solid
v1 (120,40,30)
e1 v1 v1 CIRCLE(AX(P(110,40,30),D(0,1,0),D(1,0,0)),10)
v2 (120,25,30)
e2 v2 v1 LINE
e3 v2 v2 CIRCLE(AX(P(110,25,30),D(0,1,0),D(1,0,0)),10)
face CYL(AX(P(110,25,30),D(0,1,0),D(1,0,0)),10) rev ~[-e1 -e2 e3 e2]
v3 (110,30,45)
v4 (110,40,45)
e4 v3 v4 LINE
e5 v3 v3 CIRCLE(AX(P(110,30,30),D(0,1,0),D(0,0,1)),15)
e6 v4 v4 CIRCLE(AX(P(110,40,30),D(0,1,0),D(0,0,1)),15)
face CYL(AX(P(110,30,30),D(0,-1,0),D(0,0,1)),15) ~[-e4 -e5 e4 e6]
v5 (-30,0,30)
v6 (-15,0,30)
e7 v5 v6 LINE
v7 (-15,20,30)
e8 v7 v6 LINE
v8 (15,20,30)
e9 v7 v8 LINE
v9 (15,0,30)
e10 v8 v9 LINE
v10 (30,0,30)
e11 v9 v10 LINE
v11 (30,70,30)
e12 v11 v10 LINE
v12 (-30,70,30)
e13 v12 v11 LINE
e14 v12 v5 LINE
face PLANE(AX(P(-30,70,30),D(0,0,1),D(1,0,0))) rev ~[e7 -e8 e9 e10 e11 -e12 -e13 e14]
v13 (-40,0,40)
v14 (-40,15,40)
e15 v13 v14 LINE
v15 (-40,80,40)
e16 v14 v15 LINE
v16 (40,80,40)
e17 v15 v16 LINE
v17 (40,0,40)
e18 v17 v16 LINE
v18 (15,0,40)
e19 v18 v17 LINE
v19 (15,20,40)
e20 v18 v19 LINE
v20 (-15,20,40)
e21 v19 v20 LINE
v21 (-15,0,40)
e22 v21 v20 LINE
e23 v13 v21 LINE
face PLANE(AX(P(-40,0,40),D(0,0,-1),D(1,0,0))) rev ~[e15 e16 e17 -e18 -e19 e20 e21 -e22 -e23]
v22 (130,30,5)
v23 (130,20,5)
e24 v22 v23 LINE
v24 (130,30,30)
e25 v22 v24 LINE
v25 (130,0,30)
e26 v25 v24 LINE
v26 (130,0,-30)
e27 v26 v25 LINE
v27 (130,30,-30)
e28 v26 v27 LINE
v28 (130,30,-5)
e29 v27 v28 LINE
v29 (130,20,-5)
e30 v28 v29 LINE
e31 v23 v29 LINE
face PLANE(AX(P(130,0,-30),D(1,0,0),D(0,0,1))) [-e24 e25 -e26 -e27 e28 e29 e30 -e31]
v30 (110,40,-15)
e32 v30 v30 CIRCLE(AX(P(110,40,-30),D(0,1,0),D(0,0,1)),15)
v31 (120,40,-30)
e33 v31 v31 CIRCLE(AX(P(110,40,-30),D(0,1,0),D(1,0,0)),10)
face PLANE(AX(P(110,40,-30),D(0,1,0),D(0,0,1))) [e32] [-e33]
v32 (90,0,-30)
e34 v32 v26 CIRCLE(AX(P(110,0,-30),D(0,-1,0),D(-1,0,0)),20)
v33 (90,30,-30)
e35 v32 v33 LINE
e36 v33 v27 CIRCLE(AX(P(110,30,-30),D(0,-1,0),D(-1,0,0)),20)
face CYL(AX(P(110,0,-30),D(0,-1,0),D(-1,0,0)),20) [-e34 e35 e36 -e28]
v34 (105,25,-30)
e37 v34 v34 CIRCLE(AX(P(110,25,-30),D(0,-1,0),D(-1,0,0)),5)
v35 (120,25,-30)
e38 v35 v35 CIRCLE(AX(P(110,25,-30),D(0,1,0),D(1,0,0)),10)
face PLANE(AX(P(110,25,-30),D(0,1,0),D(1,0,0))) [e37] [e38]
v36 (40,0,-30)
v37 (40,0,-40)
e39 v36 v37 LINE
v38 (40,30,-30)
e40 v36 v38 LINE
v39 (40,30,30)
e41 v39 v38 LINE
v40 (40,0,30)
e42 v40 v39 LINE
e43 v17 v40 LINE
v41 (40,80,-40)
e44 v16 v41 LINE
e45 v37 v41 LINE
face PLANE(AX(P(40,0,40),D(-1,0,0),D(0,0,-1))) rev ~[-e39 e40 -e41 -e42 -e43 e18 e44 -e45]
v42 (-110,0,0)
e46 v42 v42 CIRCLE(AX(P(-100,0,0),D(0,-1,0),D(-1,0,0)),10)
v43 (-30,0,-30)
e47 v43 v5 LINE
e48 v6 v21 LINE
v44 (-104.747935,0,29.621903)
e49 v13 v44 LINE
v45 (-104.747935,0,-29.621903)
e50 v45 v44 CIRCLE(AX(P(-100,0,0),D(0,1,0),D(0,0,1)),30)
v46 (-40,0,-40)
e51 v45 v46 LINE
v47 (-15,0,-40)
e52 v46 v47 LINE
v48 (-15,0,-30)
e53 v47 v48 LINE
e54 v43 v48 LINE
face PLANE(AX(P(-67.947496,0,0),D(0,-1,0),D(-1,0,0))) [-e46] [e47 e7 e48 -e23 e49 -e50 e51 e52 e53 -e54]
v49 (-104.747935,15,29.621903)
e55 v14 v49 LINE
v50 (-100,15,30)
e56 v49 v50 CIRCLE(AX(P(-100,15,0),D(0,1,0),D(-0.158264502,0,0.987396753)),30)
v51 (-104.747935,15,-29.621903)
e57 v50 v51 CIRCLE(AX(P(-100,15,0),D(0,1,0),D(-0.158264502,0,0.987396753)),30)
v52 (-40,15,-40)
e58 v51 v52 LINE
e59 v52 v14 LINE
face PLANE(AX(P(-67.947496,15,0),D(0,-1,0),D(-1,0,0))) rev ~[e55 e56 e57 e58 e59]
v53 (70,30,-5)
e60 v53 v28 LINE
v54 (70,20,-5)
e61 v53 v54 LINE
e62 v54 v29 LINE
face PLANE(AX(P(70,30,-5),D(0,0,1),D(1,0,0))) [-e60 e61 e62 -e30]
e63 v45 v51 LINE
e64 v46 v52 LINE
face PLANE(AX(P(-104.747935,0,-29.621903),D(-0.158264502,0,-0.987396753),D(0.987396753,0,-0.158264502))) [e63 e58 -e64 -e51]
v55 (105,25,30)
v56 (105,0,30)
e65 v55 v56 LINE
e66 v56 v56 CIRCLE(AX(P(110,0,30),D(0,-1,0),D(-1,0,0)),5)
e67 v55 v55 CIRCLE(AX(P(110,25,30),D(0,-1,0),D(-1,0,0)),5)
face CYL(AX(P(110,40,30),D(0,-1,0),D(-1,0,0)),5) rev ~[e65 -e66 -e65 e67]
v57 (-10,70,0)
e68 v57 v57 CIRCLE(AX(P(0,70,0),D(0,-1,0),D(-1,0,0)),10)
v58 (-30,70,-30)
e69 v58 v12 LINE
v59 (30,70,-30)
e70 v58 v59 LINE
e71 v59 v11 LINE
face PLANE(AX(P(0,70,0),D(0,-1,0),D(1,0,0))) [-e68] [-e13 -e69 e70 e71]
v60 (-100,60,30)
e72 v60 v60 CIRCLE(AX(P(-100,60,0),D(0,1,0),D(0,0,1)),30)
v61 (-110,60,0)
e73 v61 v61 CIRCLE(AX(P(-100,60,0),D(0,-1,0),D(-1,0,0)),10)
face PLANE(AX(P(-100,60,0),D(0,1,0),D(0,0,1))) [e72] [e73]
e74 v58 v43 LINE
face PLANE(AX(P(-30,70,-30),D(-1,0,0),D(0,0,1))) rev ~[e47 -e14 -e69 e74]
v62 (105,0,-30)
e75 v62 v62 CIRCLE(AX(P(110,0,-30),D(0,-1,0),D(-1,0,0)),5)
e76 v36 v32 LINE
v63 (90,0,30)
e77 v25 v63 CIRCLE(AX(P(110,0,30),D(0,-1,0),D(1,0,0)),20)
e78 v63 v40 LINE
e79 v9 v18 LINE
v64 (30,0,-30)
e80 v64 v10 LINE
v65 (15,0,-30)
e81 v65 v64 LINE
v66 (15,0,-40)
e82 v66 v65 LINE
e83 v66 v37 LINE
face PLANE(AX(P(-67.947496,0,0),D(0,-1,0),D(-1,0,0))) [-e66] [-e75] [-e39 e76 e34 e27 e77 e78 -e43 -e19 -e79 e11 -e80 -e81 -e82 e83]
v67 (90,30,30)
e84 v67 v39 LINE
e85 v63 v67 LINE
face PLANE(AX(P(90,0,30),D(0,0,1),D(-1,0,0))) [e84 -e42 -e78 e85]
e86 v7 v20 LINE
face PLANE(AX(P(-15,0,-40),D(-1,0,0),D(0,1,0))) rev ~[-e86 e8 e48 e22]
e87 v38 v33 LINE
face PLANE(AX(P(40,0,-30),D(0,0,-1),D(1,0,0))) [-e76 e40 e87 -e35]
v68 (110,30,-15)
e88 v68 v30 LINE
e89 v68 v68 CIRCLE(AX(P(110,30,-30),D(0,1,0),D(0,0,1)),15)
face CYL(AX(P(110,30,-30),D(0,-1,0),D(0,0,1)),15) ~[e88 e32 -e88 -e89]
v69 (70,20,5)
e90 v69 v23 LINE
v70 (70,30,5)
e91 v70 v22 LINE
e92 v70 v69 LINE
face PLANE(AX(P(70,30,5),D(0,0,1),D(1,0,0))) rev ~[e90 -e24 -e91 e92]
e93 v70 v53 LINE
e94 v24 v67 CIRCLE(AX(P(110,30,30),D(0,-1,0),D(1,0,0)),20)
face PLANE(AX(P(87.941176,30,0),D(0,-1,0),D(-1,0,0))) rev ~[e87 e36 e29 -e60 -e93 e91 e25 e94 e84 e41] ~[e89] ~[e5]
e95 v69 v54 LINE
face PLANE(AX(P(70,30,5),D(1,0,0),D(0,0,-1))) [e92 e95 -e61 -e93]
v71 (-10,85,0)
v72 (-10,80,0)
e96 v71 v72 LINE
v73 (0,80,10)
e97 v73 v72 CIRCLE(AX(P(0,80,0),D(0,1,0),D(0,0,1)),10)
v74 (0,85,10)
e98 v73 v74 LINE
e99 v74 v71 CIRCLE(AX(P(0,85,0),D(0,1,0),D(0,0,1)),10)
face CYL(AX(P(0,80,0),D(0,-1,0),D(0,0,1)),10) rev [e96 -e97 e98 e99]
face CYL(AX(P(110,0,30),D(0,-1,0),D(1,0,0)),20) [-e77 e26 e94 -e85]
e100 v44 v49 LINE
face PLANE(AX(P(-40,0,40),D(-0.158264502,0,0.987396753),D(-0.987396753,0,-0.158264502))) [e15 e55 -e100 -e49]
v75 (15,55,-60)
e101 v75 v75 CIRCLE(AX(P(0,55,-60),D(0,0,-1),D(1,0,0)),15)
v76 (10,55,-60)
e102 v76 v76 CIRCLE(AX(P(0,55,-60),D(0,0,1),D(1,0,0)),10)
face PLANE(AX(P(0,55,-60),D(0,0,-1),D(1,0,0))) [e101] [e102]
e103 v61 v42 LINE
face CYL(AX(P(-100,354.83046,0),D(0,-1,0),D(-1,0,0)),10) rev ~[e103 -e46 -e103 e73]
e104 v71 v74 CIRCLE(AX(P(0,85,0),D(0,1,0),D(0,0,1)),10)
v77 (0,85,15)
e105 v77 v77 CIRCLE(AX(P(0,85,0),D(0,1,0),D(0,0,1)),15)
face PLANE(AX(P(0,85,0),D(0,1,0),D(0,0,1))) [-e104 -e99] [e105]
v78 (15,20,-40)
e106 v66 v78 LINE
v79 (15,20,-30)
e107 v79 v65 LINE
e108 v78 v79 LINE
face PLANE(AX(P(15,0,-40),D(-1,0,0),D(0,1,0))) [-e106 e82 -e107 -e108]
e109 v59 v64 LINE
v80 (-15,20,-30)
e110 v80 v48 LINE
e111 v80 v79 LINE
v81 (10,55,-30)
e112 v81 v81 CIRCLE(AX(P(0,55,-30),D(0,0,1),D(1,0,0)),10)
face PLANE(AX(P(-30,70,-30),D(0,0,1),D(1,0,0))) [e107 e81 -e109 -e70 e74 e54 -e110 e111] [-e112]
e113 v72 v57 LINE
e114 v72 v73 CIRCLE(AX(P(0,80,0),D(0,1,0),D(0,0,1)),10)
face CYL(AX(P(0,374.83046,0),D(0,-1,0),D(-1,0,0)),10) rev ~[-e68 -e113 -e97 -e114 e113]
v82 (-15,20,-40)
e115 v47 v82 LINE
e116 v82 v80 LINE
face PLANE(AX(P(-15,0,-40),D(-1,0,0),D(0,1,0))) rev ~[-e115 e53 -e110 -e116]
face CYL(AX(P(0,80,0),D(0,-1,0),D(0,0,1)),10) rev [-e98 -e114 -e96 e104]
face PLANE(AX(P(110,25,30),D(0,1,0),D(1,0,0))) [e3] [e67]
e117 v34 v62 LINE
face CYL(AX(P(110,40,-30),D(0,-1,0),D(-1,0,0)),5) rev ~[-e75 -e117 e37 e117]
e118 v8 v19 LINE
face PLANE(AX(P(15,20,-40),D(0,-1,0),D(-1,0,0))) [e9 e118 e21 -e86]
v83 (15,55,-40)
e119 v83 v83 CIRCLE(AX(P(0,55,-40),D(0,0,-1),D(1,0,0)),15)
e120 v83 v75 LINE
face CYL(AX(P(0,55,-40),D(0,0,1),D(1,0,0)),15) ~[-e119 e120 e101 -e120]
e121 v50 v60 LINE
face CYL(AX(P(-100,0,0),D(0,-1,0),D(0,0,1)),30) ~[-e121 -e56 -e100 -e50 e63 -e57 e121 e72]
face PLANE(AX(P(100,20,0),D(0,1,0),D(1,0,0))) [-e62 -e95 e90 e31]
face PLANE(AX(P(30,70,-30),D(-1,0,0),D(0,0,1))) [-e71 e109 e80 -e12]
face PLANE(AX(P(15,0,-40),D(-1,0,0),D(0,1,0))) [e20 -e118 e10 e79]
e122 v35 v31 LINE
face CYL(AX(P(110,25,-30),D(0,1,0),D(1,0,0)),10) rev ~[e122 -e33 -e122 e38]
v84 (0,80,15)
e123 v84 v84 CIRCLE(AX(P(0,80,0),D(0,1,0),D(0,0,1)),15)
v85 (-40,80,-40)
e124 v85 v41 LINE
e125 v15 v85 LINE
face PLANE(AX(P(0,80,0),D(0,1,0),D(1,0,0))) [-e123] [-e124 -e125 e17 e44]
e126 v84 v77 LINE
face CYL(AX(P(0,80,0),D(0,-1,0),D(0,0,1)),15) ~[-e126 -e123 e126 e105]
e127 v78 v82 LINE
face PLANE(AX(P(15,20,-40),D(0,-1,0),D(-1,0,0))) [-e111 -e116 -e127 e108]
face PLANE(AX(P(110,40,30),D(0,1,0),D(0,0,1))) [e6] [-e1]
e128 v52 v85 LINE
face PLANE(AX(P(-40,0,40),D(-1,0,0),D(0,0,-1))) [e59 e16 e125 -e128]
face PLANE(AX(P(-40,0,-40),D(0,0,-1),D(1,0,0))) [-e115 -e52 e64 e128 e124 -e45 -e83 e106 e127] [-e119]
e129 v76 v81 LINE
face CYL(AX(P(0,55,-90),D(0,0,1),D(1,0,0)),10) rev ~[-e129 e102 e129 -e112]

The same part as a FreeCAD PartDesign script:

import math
import FreeCAD as App
import Part
import Sketcher

V = App.Vector

doc = App.newDocument("Part")
body = doc.addObject("PartDesign::Body", "Body")

# Sketch on XZ plane
sketch1 = body.newObject("Sketcher::SketchObject", "Sketch")
sketch1.AttachmentSupport = (doc.getObject("XZ_Plane"), [""])
sketch1.MapMode = "FlatFace"
sketch1.addGeometry([
    Part.LineSegment(V(-40, -40, 0), V(-40, 40, 0)),
    Part.LineSegment(V(-40, 40, 0), V(40, 40, 0)),
    Part.LineSegment(V(40, 40, 0), V(40, -40, 0)),
    Part.LineSegment(V(40, -40, 0), V(-40, -40, 0)),
], False)
sketch1.addConstraint([
    Sketcher.Constraint("Coincident", 0, 2, 1, 1),
    Sketcher.Constraint("Coincident", 1, 2, 2, 1),
    Sketcher.Constraint("Coincident", 2, 2, 3, 1),
    Sketcher.Constraint("Coincident", 3, 2, 0, 1),
    Sketcher.Constraint("Vertical", 0),
    Sketcher.Constraint("Horizontal", 1),
    Sketcher.Constraint("Vertical", 2),
    Sketcher.Constraint("Horizontal", 3),
    Sketcher.Constraint("Symmetric", 0, 2, 2, 2, -1, 1),
    Sketcher.Constraint("Equal", 3, 0),
    Sketcher.Constraint("DistanceX", 1, 1, 1, 2, 80.0),
])
pad1 = body.newObject("PartDesign::Pad", "Pad")
pad1.Profile = sketch1
pad1.Length = 80
pad1.Reversed = True

# Sketch on XZ plane
sketch2 = body.newObject("Sketcher::SketchObject", "Sketch001")
sketch2.AttachmentSupport = (doc.getObject("XZ_Plane"), [""])
sketch2.MapMode = "FlatFace"
sketch2.addGeometry([
    Part.LineSegment(V(-30, 30, 0), V(-30, -30, 0)),
    Part.LineSegment(V(-30, -30, 0), V(30, -30, 0)),
    Part.LineSegment(V(30, -30, 0), V(30, 30, 0)),
    Part.LineSegment(V(30, 30, 0), V(-30, 30, 0)),
], False)
sketch2.addConstraint([
    Sketcher.Constraint("Coincident", 0, 2, 1, 1),
    Sketcher.Constraint("Coincident", 1, 2, 2, 1),
    Sketcher.Constraint("Coincident", 2, 2, 3, 1),
    Sketcher.Constraint("Coincident", 3, 2, 0, 1),
    Sketcher.Constraint("Vertical", 0),
    Sketcher.Constraint("Horizontal", 1),
    Sketcher.Constraint("Vertical", 2),
    Sketcher.Constraint("Horizontal", 3),
    Sketcher.Constraint("Symmetric", 0, 2, 2, 2, -1, 1),
    Sketcher.Constraint("Equal", 3, 0),
    Sketcher.Constraint("DistanceX", 1, 1, 1, 2, 60.0),
])
pocket1 = body.newObject("PartDesign::Pocket", "Pocket")
pocket1.Profile = sketch2
pocket1.Type = "TwoLengths"
pocket1.Length = 98.97959
pocket1.Length2 = 70
pocket1.Reversed = True

# Sketch on XZ plane
sketch3 = body.newObject("Sketcher::SketchObject", "Sketch002")
sketch3.AttachmentSupport = (doc.getObject("XZ_Plane"), [""])
sketch3.MapMode = "FlatFace"
sketch3.AttachmentOffset = App.Placement(V(0, 0, -80), App.Rotation())
sketch3.addGeometry([
    Part.Circle(V(0, 0, 0), V(0, 0, 1), 15),
    Part.Circle(V(0, 0, 0), V(0, 0, 1), 10),
], False)
sketch3.addConstraint([
    Sketcher.Constraint("Coincident", 0, 3, -1, 1),
    Sketcher.Constraint("Coincident", 1, 3, -1, 1),
    Sketcher.Constraint("Diameter", 0, 30.0),
    Sketcher.Constraint("Diameter", 1, 20.0),
])
pad2 = body.newObject("PartDesign::Pad", "Pad001")
pad2.Profile = sketch3
pad2.Length = 5
pad2.Reversed = True

# Sketch on XZ plane
sketch4 = body.newObject("Sketcher::SketchObject", "Sketch003")
sketch4.AttachmentSupport = (doc.getObject("XZ_Plane"), [""])
sketch4.MapMode = "FlatFace"
sketch4.addGeometry([
    Part.LineSegment(V(90, -30, 0), V(40, -30, 0)),  # 0
    Part.LineSegment(V(40, -30, 0), V(40, 30, 0)),  # 1
    Part.LineSegment(V(40, 30, 0), V(90, 30, 0)),  # 2
    Part.ArcOfCircle(Part.Circle(V(110, 30, 0), V(0, 0, 1), 20), math.radians(0), math.radians(180)),  # 3
    Part.LineSegment(V(130, 30, 0), V(130, -30, 0)),  # 4
    Part.ArcOfCircle(Part.Circle(V(110, -30, 0), V(0, 0, 1), 20), math.radians(180), math.radians(360)),  # 5
], False)
sketch4.addConstraint([
    Sketcher.Constraint("Coincident", 0, 2, 1, 1),
    Sketcher.Constraint("Coincident", 1, 2, 2, 1),
    Sketcher.Constraint("Coincident", 2, 2, 3, 2),
    Sketcher.Constraint("Tangent", 3, 1, 4, 1),
    Sketcher.Constraint("Tangent", 4, 2, 5, 2),
    Sketcher.Constraint("Coincident", 5, 1, 0, 1),
    Sketcher.Constraint("Horizontal", 0),
    Sketcher.Constraint("Vertical", 1),
    Sketcher.Constraint("Horizontal", 2),
    Sketcher.Constraint("Vertical", 4),
    Sketcher.Constraint("Equal", 3, 5),
    Sketcher.Constraint("Horizontal", 5, 3, 0, 2),
    Sketcher.Constraint("Horizontal", 3, 3, 1, 2),
    Sketcher.Constraint("Radius", 3, 20.0),
    Sketcher.Constraint("DistanceX", 0, 2, 0, 1, 50.0),
    Sketcher.Constraint("DistanceY", 1, 1, 1, 2, 60.0),
    Sketcher.Constraint("DistanceX", -1, 1, 3, 3, 110.0),
    Sketcher.Constraint("DistanceY", -1, 1, 3, 3, 30.0),
])
pad3 = body.newObject("PartDesign::Pad", "Pad002")
pad3.Profile = sketch4
pad3.Length = 30
pad3.Reversed = True

# Sketch on XZ plane
sketch5 = body.newObject("Sketcher::SketchObject", "Sketch004")
sketch5.AttachmentSupport = (doc.getObject("XZ_Plane"), [""])
sketch5.MapMode = "FlatFace"
sketch5.AttachmentOffset = App.Placement(V(0, 0, -30), App.Rotation())
sketch5.addGeometry([
    Part.Circle(V(110, -30, 0), V(0, 0, 1), 15),
    Part.Circle(V(110, 30, 0), V(0, 0, 1), 15),
], False)
sketch5.addConstraint([
    Sketcher.Constraint("Equal", 0, 1),
    Sketcher.Constraint("Symmetric", 0, 3, 1, 3, -1),
    Sketcher.Constraint("Diameter", 0, 30.0),
    Sketcher.Constraint("DistanceX", -1, 1, 0, 3, 110.0),
    Sketcher.Constraint("DistanceY", 0, 3, -1, 1, 30.0),
])
pad4 = body.newObject("PartDesign::Pad", "Pad003")
pad4.Profile = sketch5
pad4.Length = 10
pad4.Reversed = True

# Sketch on XZ plane
sketch6 = body.newObject("Sketcher::SketchObject", "Sketch005")
sketch6.AttachmentSupport = (doc.getObject("XZ_Plane"), [""])
sketch6.MapMode = "FlatFace"
sketch6.AttachmentOffset = App.Placement(V(0, 0, -40), App.Rotation())
sketch6.addGeometry([
    Part.Circle(V(110, -30, 0), V(0, 0, 1), 5),
    Part.Circle(V(110, 30, 0), V(0, 0, 1), 5),
], False)
sketch6.addConstraint([
    Sketcher.Constraint("Equal", 0, 1),
    Sketcher.Constraint("Symmetric", 0, 3, 1, 3, -1),
    Sketcher.Constraint("Diameter", 0, 10.0),
    Sketcher.Constraint("DistanceX", -1, 1, 0, 3, 110.0),
    Sketcher.Constraint("DistanceY", 0, 3, -1, 1, 30.0),
])
doc.recompute()
hole = body.newObject("PartDesign::Hole", "Hole")
hole.Profile = sketch6
hole.ThreadType = "None"
hole.Diameter = 10
hole.DepthType = "ThroughAll"
hole.HoleCutType = "Counterbore"
hole.HoleCutDiameter = 20
hole.HoleCutDepth = 15
hole.Reversed = True

# Sketch on XZ plane
sketch7 = body.newObject("Sketcher::SketchObject", "Sketch006")
sketch7.AttachmentSupport = (doc.getObject("XZ_Plane"), [""])
sketch7.MapMode = "FlatFace"
sketch7.AttachmentOffset = App.Placement(V(0, 0, -30), App.Rotation())
sketch7.addGeometry([
    Part.LineSegment(V(70, -5, 0), V(70, 5, 0)),
    Part.LineSegment(V(70, 5, 0), V(130, 5, 0)),
    Part.LineSegment(V(130, 5, 0), V(130, -5, 0)),
    Part.LineSegment(V(130, -5, 0), V(70, -5, 0)),
], False)
sketch7.addConstraint([
    Sketcher.Constraint("Coincident", 0, 2, 1, 1),
    Sketcher.Constraint("Coincident", 1, 2, 2, 1),
    Sketcher.Constraint("Coincident", 2, 2, 3, 1),
    Sketcher.Constraint("Coincident", 3, 2, 0, 1),
    Sketcher.Constraint("Vertical", 0),
    Sketcher.Constraint("Horizontal", 1),
    Sketcher.Constraint("Vertical", 2),
    Sketcher.Constraint("Horizontal", 3),
    Sketcher.Constraint("DistanceX", 1, 1, 1, 2, 60.0),
    Sketcher.Constraint("DistanceY", 0, 1, 0, 2, 10.0),
    Sketcher.Constraint("DistanceX", -1, 1, 0, 2, 70.0),
    Sketcher.Constraint("DistanceY", -1, 1, 0, 2, 5.0),
])
pocket2 = body.newObject("PartDesign::Pocket", "Pocket001")
pocket2.Profile = sketch7
pocket2.Length = 10
pocket2.Reversed = True
body2 = doc.addObject("PartDesign::Body", "Body001")

# Sketch on XZ plane
sketch8 = body2.newObject("Sketcher::SketchObject", "Sketch007")
sketch8.AttachmentSupport = (doc.getObject("XZ_Plane001"), [""])
sketch8.MapMode = "FlatFace"
sketch8.addGeometry(Part.Circle(V(-100, 0, 0), V(0, 0, 1), 30), False)
sketch8.addConstraint([
    Sketcher.Constraint("PointOnObject", 0, 3, -1),
    Sketcher.Constraint("Diameter", 0, 60.0),
    Sketcher.Constraint("DistanceX", 0, 3, -1, 1, 100.0),
])
pad5 = body2.newObject("PartDesign::Pad", "Pad004")
pad5.Profile = sketch8
pad5.Length = 60
pad5.Reversed = True
body.AllowCompound = True
doc.recompute()

boolean = body.newObject("PartDesign::Boolean", "Boolean")
boolean.Type = "Fuse"
boolean.addObjects([body2])

# Sketch on XZ plane
sketch9 = body.newObject("Sketcher::SketchObject", "Sketch008")
sketch9.AttachmentSupport = (doc.getObject("XZ_Plane"), [""])
sketch9.MapMode = "FlatFace"
sketch9.addGeometry([
    Part.LineSegment(V(-40, 40, 0), V(-40, -40, 0)),
    Part.LineSegment(V(-40, -40, 0), V(-104.747935, -29.621903, 0)),
    Part.ArcOfCircle(Part.Circle(V(-100, 0, 0), V(0, 0, 1), 30), math.radians(-99.106176), math.radians(99.106176)),
    Part.LineSegment(V(-104.747935, 29.621903, 0), V(-40, 40, 0)),
], False)
sketch9.addConstraint([
    Sketcher.Constraint("Coincident", 0, 2, 1, 1),
    Sketcher.Constraint("Tangent", 1, 2, 2, 1),
    Sketcher.Constraint("Tangent", 2, 2, 3, 1),
    Sketcher.Constraint("Coincident", 3, 2, 0, 1),
    Sketcher.Constraint("Vertical", 0),
    Sketcher.Constraint("Symmetric", 1, 2, 2, 2, -1),
    Sketcher.Constraint("Radius", 2, 30.0),
    Sketcher.Constraint("DistanceY", 0, 2, 0, 1, 80.0),
    Sketcher.Constraint("DistanceX", 2, 3, -1, 1, 100.0),
    Sketcher.Constraint("DistanceX", 0, 2, -1, 1, 40.0),
])
pad6 = body.newObject("PartDesign::Pad", "Pad005")
pad6.Profile = sketch9
pad6.Length = 15
pad6.Reversed = True

# Sketch on XY plane
sketch10 = body.newObject("Sketcher::SketchObject", "Sketch009")
sketch10.AttachmentSupport = (doc.getObject("XY_Plane"), [""])
sketch10.MapMode = "FlatFace"
sketch10.AttachmentOffset = App.Placement(V(0, 0, -40), App.Rotation())
sketch10.addGeometry([
    Part.LineSegment(V(15, 20, 0), V(15, 0, 0)),
    Part.LineSegment(V(15, 0, 0), V(-15, 0, 0)),
    Part.LineSegment(V(-15, 0, 0), V(-15, 20, 0)),
    Part.LineSegment(V(-15, 20, 0), V(15, 20, 0)),
], False)
sketch10.addConstraint([
    Sketcher.Constraint("Coincident", 0, 2, 1, 1),
    Sketcher.Constraint("Coincident", 1, 2, 2, 1),
    Sketcher.Constraint("Coincident", 2, 2, 3, 1),
    Sketcher.Constraint("Coincident", 3, 2, 0, 1),
    Sketcher.Constraint("Vertical", 0),
    Sketcher.Constraint("Horizontal", 1),
    Sketcher.Constraint("Vertical", 2),
    Sketcher.Constraint("Horizontal", 3),
    Sketcher.Constraint("Symmetric", 0, 2, 1, 2, -1, 1),
    Sketcher.Constraint("DistanceX", 1, 2, 1, 1, 30.0),
    Sketcher.Constraint("DistanceY", 0, 2, 0, 1, 20.0),
])
pocket3 = body.newObject("PartDesign::Pocket", "Pocket002")
pocket3.Profile = sketch10
pocket3.Type = "ThroughAll"
pocket3.Reversed = True

# Sketch on XY plane
sketch11 = body.newObject("Sketcher::SketchObject", "Sketch010")
sketch11.AttachmentSupport = (doc.getObject("XY_Plane"), [""])
sketch11.MapMode = "FlatFace"
sketch11.AttachmentOffset = App.Placement(V(0, 0, -40), App.Rotation())
sketch11.addGeometry(Part.Circle(V(0, 55, 0), V(0, 0, 1), 15), False)
sketch11.addConstraint([
    Sketcher.Constraint("PointOnObject", 0, 3, -2),
    Sketcher.Constraint("Diameter", 0, 30.0),
    Sketcher.Constraint("DistanceY", -1, 1, 0, 3, 55.0),
])
pad7 = body.newObject("PartDesign::Pad", "Pad006")
pad7.Profile = sketch11
pad7.Length = 20
pad7.Reversed = True

# Sketch on XZ plane
sketch12 = body.newObject("Sketcher::SketchObject", "Sketch011")
sketch12.AttachmentSupport = (doc.getObject("XZ_Plane"), [""])
sketch12.MapMode = "FlatFace"
sketch12.AttachmentOffset = App.Placement(V(0, 0, -80), App.Rotation())
sketch12.addGeometry(Part.Circle(V(0, 0, 0), V(0, 0, 1), 10), False)
sketch12.addConstraint([
    Sketcher.Constraint("Coincident", 0, 3, -1, 1),
    Sketcher.Constraint("Diameter", 0, 20.0),
])
doc.recompute()
hole2 = body.newObject("PartDesign::Hole", "Hole001")
hole2.Profile = sketch12
hole2.ThreadType = "None"
hole2.Diameter = 20
hole2.DepthType = "ThroughAll"
hole2.Reversed = True

# Sketch on XY plane
sketch13 = body.newObject("Sketcher::SketchObject", "Sketch012")
sketch13.AttachmentSupport = (doc.getObject("XY_Plane"), [""])
sketch13.MapMode = "FlatFace"
sketch13.AttachmentOffset = App.Placement(V(0, 0, -60), App.Rotation())
sketch13.addGeometry(Part.Circle(V(0, 55, 0), V(0, 0, 1), 10), False)
sketch13.addConstraint([
    Sketcher.Constraint("PointOnObject", 0, 3, -2),
    Sketcher.Constraint("Diameter", 0, 20.0),
    Sketcher.Constraint("DistanceY", -1, 1, 0, 3, 55.0),
])
doc.recompute()
hole3 = body.newObject("PartDesign::Hole", "Hole002")
hole3.Profile = sketch13
hole3.ThreadType = "None"
hole3.Diameter = 20
hole3.DepthType = "Dimension"
hole3.Depth = 30
hole3.DrillPoint = "Flat"
hole3.Reversed = True

# Sketch on XZ plane
sketch14 = body.newObject("Sketcher::SketchObject", "Sketch013")
sketch14.AttachmentSupport = (doc.getObject("XZ_Plane"), [""])
sketch14.MapMode = "FlatFace"
sketch14.AttachmentOffset = App.Placement(V(0, 0, -60), App.Rotation())
sketch14.addGeometry(Part.Circle(V(-100, 0, 0), V(0, 0, 1), 10), False)
sketch14.addConstraint([
    Sketcher.Constraint("PointOnObject", 0, 3, -1),
    Sketcher.Constraint("Diameter", 0, 20.0),
    Sketcher.Constraint("DistanceX", 0, 3, -1, 1, 100.0),
])
doc.recompute()
hole4 = body.newObject("PartDesign::Hole", "Hole003")
hole4.Profile = sketch14
hole4.ThreadType = "None"
hole4.Diameter = 20
hole4.DepthType = "ThroughAll"
hole4.Reversed = True

doc.recompute()
